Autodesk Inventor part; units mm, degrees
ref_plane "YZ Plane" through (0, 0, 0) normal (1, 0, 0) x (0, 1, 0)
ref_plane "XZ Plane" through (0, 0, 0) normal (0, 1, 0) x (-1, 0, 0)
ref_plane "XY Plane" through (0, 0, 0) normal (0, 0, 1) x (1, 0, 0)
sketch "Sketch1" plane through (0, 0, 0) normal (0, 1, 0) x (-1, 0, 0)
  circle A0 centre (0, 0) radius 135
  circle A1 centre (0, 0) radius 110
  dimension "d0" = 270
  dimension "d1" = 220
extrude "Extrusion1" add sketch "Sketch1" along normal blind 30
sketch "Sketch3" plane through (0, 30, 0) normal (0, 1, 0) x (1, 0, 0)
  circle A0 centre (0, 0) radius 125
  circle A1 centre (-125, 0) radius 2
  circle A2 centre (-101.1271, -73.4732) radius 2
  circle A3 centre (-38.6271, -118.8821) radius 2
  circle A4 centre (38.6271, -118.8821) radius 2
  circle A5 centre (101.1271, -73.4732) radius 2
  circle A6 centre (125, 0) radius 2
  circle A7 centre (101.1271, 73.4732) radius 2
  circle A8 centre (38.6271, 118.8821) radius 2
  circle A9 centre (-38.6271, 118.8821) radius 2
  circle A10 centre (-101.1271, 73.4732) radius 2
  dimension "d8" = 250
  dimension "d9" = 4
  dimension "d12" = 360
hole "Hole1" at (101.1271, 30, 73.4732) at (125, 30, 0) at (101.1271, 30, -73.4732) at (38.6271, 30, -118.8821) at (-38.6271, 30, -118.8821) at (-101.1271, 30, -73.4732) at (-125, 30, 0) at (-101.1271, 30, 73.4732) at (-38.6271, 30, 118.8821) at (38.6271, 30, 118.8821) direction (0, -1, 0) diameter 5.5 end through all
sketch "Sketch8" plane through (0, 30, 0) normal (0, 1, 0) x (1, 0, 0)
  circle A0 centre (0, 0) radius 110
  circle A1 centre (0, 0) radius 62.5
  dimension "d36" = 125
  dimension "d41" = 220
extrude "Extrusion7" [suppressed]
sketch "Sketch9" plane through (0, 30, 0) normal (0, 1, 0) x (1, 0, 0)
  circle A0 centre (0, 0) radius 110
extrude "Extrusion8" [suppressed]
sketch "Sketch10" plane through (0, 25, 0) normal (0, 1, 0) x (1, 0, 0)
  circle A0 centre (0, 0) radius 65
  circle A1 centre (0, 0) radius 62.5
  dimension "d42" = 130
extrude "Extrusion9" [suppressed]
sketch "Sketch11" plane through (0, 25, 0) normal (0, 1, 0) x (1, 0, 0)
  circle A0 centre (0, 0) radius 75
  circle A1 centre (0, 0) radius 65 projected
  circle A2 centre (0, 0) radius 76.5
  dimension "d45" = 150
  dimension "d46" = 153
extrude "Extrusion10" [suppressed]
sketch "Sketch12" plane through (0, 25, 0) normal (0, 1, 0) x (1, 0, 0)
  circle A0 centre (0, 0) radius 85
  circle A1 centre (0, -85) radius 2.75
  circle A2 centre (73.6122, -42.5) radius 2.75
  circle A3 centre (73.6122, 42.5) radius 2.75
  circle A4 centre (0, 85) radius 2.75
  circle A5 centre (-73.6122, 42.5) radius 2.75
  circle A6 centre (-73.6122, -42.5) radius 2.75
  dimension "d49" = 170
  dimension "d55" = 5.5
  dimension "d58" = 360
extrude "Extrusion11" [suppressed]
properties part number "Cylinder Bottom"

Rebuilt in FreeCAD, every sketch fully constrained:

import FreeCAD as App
import Part
import Sketcher
Q = App.Units.Quantity

doc = App.newDocument("Part")
body = doc.addObject("PartDesign::Body", "Body")

sketch1 = body.newObject("Sketcher::SketchObject", "Sketch")
sketch1.AttachmentSupport = (doc.getObject("XZ_Plane"), [""])
sketch1.MapMode = "FlatFace"
sketch1.addGeometry([
    Part.Circle(App.Vector(0, 0, 0), App.Vector(0, 0, 1), 135),
    Part.Circle(App.Vector(0, 0, 0), App.Vector(0, 0, 1), 110),
], False)
sketch1.addConstraint([
    Sketcher.Constraint("Coincident", 0, 3, -1, 1),
    Sketcher.Constraint("Coincident", 1, 3, -1, 1),
    Sketcher.Constraint("Diameter", 0, Q("270 mm")),
    Sketcher.Constraint("Diameter", 1, Q("220 mm")),
])
pad1 = body.newObject("PartDesign::Pad", "Pad")
pad1.Profile = sketch1
pad1.Length = 30
pad1.Reversed = True

sketch2 = body.newObject("Sketcher::SketchObject", "Sketch001")
sketch2.AttachmentSupport = (doc.getObject("XZ_Plane"), [""])
sketch2.MapMode = "FlatFace"
sketch2.AttachmentOffset = App.Placement(App.Vector(0, 0, -30), App.Rotation())
sketch2.addGeometry([
    Part.Circle(App.Vector(101.1, 73.5, 0), App.Vector(0, 0, 1), 2.8),
    Part.Circle(App.Vector(125, 0, 0), App.Vector(0, 0, 1), 2.8),
    Part.Circle(App.Vector(101.1, -73.5, 0), App.Vector(0, 0, 1), 2.8),
    Part.Circle(App.Vector(38.6, -118.9, 0), App.Vector(0, 0, 1), 2.8),
    Part.Circle(App.Vector(-38.6, -118.9, 0), App.Vector(0, 0, 1), 2.8),
    Part.Circle(App.Vector(-101.1, -73.5, 0), App.Vector(0, 0, 1), 2.8),
    Part.Circle(App.Vector(-125, 0, 0), App.Vector(0, 0, 1), 2.8),
    Part.Circle(App.Vector(-101.1, 73.5, 0), App.Vector(0, 0, 1), 2.8),
    Part.Circle(App.Vector(-38.6, 118.9, 0), App.Vector(0, 0, 1), 2.8),
    Part.Circle(App.Vector(38.6, 118.9, 0), App.Vector(0, 0, 1), 2.8),
], False)
sketch2.addConstraint([
    Sketcher.Constraint("Equal", 0, 1),
    Sketcher.Constraint("Equal", 1, 2),
    Sketcher.Constraint("Equal", 2, 3),
    Sketcher.Constraint("Equal", 3, 4),
    Sketcher.Constraint("Equal", 4, 5),
    Sketcher.Constraint("Equal", 5, 6),
    Sketcher.Constraint("Equal", 6, 7),
    Sketcher.Constraint("Equal", 7, 8),
    Sketcher.Constraint("Equal", 8, 9),
    Sketcher.Constraint("Symmetric", 0, 3, 5, 3, -1, 1),
    Sketcher.Constraint("Symmetric", 1, 3, 6, 3, -1, 1),
    Sketcher.Constraint("Symmetric", 2, 3, 7, 3, -1, 1),
    Sketcher.Constraint("Symmetric", 3, 3, 8, 3, -1, 1),
    Sketcher.Constraint("Symmetric", 4, 3, 9, 3, -1, 1),
    Sketcher.Constraint("Symmetric", 3, 3, 4, 3, -2),
    Sketcher.Constraint("Symmetric", 2, 3, 5, 3, -2),
    Sketcher.Constraint("PointOnObject", 1, 3, -1),
    Sketcher.Constraint("Diameter", 0, Q("5.5 mm")),
    Sketcher.Constraint("DistanceX", -1, 1, 1, 3, Q("125 mm")),
    Sketcher.Constraint("DistanceX", 3, 3, 2, 3, Q("62.5 mm")),
    Sketcher.Constraint("DistanceX", -1, 1, 0, 3, Q("101.127 mm")),
    Sketcher.Constraint("DistanceY", 3, 3, -1, 1, Q("118.882 mm")),
    Sketcher.Constraint("DistanceY", 3, 3, 2, 3, Q("45.409 mm")),
])
doc.recompute()
hole = body.newObject("PartDesign::Hole", "Hole")
hole.Profile = sketch2
hole.ThreadType = "None"
hole.Diameter = 5.5
hole.DepthType = "ThroughAll"
hole.Reversed = True

doc.recompute()
